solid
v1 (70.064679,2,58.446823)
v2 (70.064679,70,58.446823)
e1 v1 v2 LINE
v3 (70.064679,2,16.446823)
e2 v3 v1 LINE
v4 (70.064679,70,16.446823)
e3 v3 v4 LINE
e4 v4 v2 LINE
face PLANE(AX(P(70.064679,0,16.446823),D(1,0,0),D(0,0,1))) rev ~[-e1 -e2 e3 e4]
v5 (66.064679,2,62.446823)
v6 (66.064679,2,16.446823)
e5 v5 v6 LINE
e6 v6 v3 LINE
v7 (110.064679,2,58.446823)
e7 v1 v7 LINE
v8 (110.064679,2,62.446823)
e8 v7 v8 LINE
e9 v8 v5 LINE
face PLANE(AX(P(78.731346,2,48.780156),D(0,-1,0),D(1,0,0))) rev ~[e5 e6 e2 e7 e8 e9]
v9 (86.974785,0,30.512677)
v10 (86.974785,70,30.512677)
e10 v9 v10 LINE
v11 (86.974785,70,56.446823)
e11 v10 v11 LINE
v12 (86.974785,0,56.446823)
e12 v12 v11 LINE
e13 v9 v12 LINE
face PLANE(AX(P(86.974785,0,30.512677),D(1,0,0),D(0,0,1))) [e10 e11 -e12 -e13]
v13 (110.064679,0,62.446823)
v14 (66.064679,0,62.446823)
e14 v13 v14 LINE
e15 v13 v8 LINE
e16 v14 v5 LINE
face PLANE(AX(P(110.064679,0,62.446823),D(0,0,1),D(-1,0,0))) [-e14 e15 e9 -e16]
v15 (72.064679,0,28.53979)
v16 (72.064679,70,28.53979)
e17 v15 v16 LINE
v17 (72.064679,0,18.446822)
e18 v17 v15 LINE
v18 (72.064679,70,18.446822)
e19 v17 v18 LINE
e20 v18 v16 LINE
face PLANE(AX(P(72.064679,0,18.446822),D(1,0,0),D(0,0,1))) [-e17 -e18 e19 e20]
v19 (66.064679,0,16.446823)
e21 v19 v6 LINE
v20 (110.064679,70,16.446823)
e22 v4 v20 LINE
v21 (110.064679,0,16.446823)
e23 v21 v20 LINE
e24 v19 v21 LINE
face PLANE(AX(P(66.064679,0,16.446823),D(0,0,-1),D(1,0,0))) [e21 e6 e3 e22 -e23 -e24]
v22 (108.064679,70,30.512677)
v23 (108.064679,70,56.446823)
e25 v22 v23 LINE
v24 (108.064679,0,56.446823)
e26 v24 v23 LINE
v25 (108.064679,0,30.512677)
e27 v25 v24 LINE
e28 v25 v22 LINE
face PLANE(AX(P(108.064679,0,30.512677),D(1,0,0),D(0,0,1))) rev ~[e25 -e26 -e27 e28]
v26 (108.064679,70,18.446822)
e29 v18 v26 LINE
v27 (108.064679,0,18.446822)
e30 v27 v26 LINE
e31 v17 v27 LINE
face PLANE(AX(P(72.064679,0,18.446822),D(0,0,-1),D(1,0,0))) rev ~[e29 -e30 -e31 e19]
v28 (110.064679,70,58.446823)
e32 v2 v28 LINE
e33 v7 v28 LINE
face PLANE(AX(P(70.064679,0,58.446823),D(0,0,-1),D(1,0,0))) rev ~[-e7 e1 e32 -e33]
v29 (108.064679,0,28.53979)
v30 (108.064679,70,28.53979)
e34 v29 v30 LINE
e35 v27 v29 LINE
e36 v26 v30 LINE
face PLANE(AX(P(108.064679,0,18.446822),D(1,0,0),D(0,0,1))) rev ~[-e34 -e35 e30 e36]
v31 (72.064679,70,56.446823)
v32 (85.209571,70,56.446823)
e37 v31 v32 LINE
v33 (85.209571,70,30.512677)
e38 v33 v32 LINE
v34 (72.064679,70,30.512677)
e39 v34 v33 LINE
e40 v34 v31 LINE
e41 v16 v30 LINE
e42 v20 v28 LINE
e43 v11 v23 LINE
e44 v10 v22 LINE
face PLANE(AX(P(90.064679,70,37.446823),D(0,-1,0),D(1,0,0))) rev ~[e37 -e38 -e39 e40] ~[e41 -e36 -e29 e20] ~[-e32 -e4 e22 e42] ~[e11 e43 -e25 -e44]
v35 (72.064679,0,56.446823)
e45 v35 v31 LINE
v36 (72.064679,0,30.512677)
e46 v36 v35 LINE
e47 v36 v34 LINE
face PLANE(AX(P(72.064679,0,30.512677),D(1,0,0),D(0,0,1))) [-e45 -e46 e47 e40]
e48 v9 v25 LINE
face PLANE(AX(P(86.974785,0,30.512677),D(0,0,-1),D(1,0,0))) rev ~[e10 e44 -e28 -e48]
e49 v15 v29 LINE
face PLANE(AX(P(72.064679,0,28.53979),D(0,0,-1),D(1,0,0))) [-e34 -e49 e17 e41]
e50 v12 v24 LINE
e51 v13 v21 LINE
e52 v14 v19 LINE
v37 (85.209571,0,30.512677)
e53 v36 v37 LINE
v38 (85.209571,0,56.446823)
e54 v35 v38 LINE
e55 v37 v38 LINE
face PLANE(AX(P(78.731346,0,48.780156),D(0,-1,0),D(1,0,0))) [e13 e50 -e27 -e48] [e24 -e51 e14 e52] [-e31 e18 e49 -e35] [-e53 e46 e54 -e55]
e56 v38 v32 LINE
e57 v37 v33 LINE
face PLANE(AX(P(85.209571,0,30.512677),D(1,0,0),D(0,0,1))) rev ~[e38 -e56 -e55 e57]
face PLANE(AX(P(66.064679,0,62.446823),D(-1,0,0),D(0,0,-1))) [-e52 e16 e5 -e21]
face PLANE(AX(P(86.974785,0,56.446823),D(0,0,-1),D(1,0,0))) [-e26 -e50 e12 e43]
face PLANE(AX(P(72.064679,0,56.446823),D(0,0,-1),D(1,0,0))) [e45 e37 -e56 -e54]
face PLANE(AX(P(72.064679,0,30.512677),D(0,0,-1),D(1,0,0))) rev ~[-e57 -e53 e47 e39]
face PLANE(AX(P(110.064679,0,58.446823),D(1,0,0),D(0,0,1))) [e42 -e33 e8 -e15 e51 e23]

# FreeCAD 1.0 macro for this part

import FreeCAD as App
import Part
import Sketcher
Q = App.Units.Quantity

doc = App.newDocument("Part")
params = doc.addObject("Spreadsheet::Sheet", "Params")
for row, (alias, value) in enumerate([
    ("sketch1_width", "40 mm"),
    ("sketch1_width2", "36 mm"),
    ("sketch1_height", "42 mm"),
    ("pad1_length", "70 mm"),
    ("sketch2_width", "44 mm"),
    ("sketch2_width2", "4 mm"),
    ("sketch2_height", "46 mm"),
    ("pad2_length", "2 mm"),
], start=1):
    params.set(f"A{row}", alias)
    params.set(f"B{row}", "=" + value)
    params.setAlias(f"B{row}", alias)

body = doc.addObject("PartDesign::Body", "Body")

# Sketch on XZ plane
sketch1 = body.newObject("Sketcher::SketchObject", "Sketch")
sketch1.AttachmentSupport = (doc.getObject("XZ_Plane"), [""])
sketch1.MapMode = "FlatFace"
sketch1.addGeometry([
    Part.LineSegment(App.Vector(70, 58, 0), App.Vector(70, 16, 0)),  # 0
    Part.LineSegment(App.Vector(70, 16, 0), App.Vector(110, 16, 0)),  # 1
    Part.LineSegment(App.Vector(110, 16, 0), App.Vector(110, 58, 0)),  # 2
    Part.LineSegment(App.Vector(110, 58, 0), App.Vector(70, 58, 0)),  # 3
    Part.LineSegment(App.Vector(108, 18, 0), App.Vector(72, 18, 0)),  # 4
    Part.LineSegment(App.Vector(72, 18, 0), App.Vector(72, 29, 0)),  # 5
    Part.LineSegment(App.Vector(72, 29, 0), App.Vector(108, 29, 0)),  # 6
    Part.LineSegment(App.Vector(108, 29, 0), App.Vector(108, 18, 0)),  # 7
    Part.LineSegment(App.Vector(85, 31, 0), App.Vector(72, 31, 0)),  # 8
    Part.LineSegment(App.Vector(72, 31, 0), App.Vector(72, 56, 0)),  # 9
    Part.LineSegment(App.Vector(72, 56, 0), App.Vector(85, 56, 0)),  # 10
    Part.LineSegment(App.Vector(85, 56, 0), App.Vector(85, 31, 0)),  # 11
    Part.LineSegment(App.Vector(108, 31, 0), App.Vector(87, 31, 0)),  # 12
    Part.LineSegment(App.Vector(87, 31, 0), App.Vector(87, 56, 0)),  # 13
    Part.LineSegment(App.Vector(87, 56, 0), App.Vector(108, 56, 0)),  # 14
    Part.LineSegment(App.Vector(108, 56, 0), App.Vector(108, 31, 0)),  # 15
], False)
sketch1.addConstraint([
    Sketcher.Constraint("Coincident", 0, 2, 1, 1),
    Sketcher.Constraint("Coincident", 1, 2, 2, 1),
    Sketcher.Constraint("Coincident", 2, 2, 3, 1),
    Sketcher.Constraint("Coincident", 3, 2, 0, 1),
    Sketcher.Constraint("Coincident", 4, 2, 5, 1),
    Sketcher.Constraint("Coincident", 5, 2, 6, 1),
    Sketcher.Constraint("Coincident", 6, 2, 7, 1),
    Sketcher.Constraint("Coincident", 7, 2, 4, 1),
    Sketcher.Constraint("Coincident", 8, 2, 9, 1),
    Sketcher.Constraint("Coincident", 9, 2, 10, 1),
    Sketcher.Constraint("Coincident", 10, 2, 11, 1),
    Sketcher.Constraint("Coincident", 11, 2, 8, 1),
    Sketcher.Constraint("Coincident", 12, 2, 13, 1),
    Sketcher.Constraint("Coincident", 13, 2, 14, 1),
    Sketcher.Constraint("Coincident", 14, 2, 15, 1),
    Sketcher.Constraint("Coincident", 15, 2, 12, 1),
    Sketcher.Constraint("Vertical", 0),
    Sketcher.Constraint("Horizontal", 1),
    Sketcher.Constraint("Vertical", 2),
    Sketcher.Constraint("Horizontal", 3),
    Sketcher.Constraint("Horizontal", 4),
    Sketcher.Constraint("Vertical", 5),
    Sketcher.Constraint("Horizontal", 6),
    Sketcher.Constraint("Vertical", 7),
    Sketcher.Constraint("Horizontal", 8),
    Sketcher.Constraint("Vertical", 9),
    Sketcher.Constraint("Horizontal", 10),
    Sketcher.Constraint("Vertical", 11),
    Sketcher.Constraint("Horizontal", 12),
    Sketcher.Constraint("Vertical", 13),
    Sketcher.Constraint("Horizontal", 14),
    Sketcher.Constraint("Vertical", 15),
    Sketcher.Constraint("Horizontal", 11, 2, 12, 2),
    Sketcher.Constraint("Horizontal", 10, 2, 13, 2),
    Sketcher.Constraint("Vertical", 5, 2, 8, 2),
    Sketcher.Constraint("Vertical", 7, 2, 14, 2),
    Sketcher.Constraint("DistanceX", 1, 1, 1, 2, Q("40 mm")),
    Sketcher.Constraint("DistanceX", 4, 2, 4, 1, Q("36 mm")),
    Sketcher.Constraint("DistanceY", 0, 2, 0, 1, Q("42 mm")),
    Sketcher.Constraint("DistanceX", 0, 2, 4, 2, Q("2 mm")),
    Sketcher.Constraint("DistanceY", 0, 2, 4, 2, Q("2 mm")),
    Sketcher.Constraint("DistanceY", 9, 2, 3, 2, Q("2 mm")),
    Sketcher.Constraint("DistanceX", 8, 2, 8, 1, Q("13.144892 mm")),
    Sketcher.Constraint("DistanceX", 12, 2, 12, 1, Q("21.089894 mm")),
    Sketcher.Constraint("DistanceY", 5, 1, 5, 2, Q("10.092967 mm")),
    Sketcher.Constraint("DistanceY", 9, 1, 9, 2, Q("25.934145 mm")),
    Sketcher.Constraint("DistanceX", -1, 1, 0, 2, Q("70.064679 mm")),
    Sketcher.Constraint("DistanceY", -1, 1, 5, 2, Q("28.53979 mm")),
])
sketch1.setExpression("Constraints[36]", "Params.sketch1_width")
sketch1.setExpression("Constraints[37]", "Params.sketch1_width2")
sketch1.setExpression("Constraints[38]", "Params.sketch1_height")
pad1 = body.newObject("PartDesign::Pad", "Pad")
pad1.Profile = sketch1
pad1.setExpression("Length", "Params.pad1_length")
pad1.Reversed = True

# Sketch on XZ plane
sketch2 = body.newObject("Sketcher::SketchObject", "Sketch001")
sketch2.AttachmentSupport = (doc.getObject("XZ_Plane"), [""])
sketch2.MapMode = "FlatFace"
sketch2.addGeometry([
    Part.LineSegment(App.Vector(110.1, 62.4, 0), App.Vector(66.1, 62.4, 0)),  # 0
    Part.LineSegment(App.Vector(66.1, 62.4, 0), App.Vector(66.1, 16.4, 0)),  # 1
    Part.LineSegment(App.Vector(66.1, 16.4, 0), App.Vector(70.1, 16.4, 0)),  # 2
    Part.LineSegment(App.Vector(70.1, 16.4, 0), App.Vector(70.1, 58.4, 0)),  # 3
    Part.LineSegment(App.Vector(70.1, 58.4, 0), App.Vector(110.1, 58.4, 0)),  # 4
    Part.LineSegment(App.Vector(110.1, 58.4, 0), App.Vector(110.1, 62.4, 0)),  # 5
], False)
sketch2.addConstraint([
    Sketcher.Constraint("Coincident", 0, 2, 1, 1),
    Sketcher.Constraint("Coincident", 1, 2, 2, 1),
    Sketcher.Constraint("Coincident", 2, 2, 3, 1),
    Sketcher.Constraint("Coincident", 3, 2, 4, 1),
    Sketcher.Constraint("Coincident", 4, 2, 5, 1),
    Sketcher.Constraint("Coincident", 5, 2, 0, 1),
    Sketcher.Constraint("Horizontal", 0),
    Sketcher.Constraint("Vertical", 1),
    Sketcher.Constraint("Horizontal", 2),
    Sketcher.Constraint("Vertical", 3),
    Sketcher.Constraint("Horizontal", 4),
    Sketcher.Constraint("Vertical", 5),
    Sketcher.Constraint("Equal", 2, 5),
    Sketcher.Constraint("DistanceX", 0, 2, 0, 1, Q("44 mm")),
    Sketcher.Constraint("DistanceX", 2, 1, 2, 2, Q("4 mm")),
    Sketcher.Constraint("DistanceY", 1, 2, 1, 1, Q("46 mm")),
    Sketcher.Constraint("DistanceX", -1, 1, 0, 2, Q("66.064679 mm")),
    Sketcher.Constraint("DistanceY", -1, 1, 0, 2, Q("62.446823 mm")),
])
sketch2.setExpression("Constraints[13]", "Params.sketch2_width")
sketch2.setExpression("Constraints[14]", "Params.sketch2_width2")
sketch2.setExpression("Constraints[15]", "Params.sketch2_height")
pad2 = body.newObject("PartDesign::Pad", "Pad001")
pad2.Profile = sketch2
pad2.setExpression("Length", "Params.pad2_length")
pad2.Reversed = True

doc.recompute()
